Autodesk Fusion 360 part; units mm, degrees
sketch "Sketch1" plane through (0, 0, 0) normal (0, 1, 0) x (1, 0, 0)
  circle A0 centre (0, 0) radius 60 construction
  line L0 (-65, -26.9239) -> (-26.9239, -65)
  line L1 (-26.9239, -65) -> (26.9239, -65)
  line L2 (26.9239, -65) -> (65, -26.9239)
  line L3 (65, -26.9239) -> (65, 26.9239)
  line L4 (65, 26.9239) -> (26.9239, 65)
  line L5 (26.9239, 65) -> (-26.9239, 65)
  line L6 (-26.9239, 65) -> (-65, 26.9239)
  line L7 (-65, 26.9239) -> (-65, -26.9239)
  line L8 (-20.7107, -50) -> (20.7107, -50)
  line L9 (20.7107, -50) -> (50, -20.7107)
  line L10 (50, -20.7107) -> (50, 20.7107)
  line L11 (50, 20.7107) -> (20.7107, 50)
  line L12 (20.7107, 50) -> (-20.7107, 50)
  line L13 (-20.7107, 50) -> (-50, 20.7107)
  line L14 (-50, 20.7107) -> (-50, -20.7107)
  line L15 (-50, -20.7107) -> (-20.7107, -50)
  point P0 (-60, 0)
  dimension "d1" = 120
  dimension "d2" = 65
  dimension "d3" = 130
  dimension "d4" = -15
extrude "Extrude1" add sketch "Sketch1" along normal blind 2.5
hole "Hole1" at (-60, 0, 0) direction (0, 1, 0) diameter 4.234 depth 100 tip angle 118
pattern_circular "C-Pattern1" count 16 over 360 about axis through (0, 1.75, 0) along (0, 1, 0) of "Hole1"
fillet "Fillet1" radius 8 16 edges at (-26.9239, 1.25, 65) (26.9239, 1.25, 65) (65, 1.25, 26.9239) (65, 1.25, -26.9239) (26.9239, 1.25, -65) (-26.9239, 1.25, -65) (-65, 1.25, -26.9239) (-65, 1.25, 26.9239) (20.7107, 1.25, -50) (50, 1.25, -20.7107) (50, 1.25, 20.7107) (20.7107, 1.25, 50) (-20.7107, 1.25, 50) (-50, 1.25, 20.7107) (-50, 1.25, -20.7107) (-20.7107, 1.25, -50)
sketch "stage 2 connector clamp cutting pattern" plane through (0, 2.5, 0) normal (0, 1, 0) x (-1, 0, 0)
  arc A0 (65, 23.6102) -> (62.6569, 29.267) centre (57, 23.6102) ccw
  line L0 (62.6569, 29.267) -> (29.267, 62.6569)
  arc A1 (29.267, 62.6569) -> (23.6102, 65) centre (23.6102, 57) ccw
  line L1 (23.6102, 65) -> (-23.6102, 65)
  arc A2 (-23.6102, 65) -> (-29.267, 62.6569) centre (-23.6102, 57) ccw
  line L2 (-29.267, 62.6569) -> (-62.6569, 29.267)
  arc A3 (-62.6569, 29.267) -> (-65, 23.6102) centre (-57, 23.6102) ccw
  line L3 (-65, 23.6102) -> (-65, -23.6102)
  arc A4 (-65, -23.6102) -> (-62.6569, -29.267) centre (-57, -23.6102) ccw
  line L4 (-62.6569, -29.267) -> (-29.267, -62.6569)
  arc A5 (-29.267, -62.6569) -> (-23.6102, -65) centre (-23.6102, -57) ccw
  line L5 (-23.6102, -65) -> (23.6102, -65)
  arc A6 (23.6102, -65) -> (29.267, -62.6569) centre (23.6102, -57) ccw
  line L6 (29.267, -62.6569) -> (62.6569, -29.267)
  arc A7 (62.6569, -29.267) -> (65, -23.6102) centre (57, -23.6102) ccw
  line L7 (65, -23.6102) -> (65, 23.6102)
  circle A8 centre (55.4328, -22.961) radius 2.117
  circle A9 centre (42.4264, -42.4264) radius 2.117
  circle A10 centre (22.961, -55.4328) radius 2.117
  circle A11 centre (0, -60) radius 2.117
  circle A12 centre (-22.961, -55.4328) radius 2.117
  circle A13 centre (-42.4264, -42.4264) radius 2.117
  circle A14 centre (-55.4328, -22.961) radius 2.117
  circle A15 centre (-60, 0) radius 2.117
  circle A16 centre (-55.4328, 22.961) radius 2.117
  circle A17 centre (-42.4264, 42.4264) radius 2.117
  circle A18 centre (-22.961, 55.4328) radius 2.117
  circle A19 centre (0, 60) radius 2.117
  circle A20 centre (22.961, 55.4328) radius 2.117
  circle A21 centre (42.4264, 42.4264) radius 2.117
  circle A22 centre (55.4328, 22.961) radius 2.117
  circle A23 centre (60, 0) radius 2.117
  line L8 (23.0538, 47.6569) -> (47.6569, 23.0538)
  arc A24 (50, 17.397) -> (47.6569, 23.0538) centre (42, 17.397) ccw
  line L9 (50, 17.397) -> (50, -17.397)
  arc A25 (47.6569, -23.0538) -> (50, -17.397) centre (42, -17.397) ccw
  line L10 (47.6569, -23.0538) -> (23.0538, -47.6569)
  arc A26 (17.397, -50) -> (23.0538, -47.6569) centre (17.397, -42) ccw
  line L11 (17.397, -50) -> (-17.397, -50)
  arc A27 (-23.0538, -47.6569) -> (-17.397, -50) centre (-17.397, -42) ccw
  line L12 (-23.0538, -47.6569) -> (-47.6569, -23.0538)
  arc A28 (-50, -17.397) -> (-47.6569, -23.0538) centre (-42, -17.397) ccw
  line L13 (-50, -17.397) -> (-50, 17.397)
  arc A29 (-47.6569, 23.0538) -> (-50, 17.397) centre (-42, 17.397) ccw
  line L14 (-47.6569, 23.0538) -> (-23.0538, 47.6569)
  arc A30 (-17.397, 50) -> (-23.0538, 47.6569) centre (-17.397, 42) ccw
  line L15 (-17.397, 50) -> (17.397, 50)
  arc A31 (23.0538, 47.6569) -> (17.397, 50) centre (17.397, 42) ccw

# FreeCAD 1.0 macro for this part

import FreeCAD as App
import Part
import Sketcher

V = App.Vector
Q = App.Units.Quantity


def edges_at(feature, points):
    """Names of the edges that pass closest to the given points."""
    edges = feature.Shape.Edges
    near = lambda p: min(range(len(edges)), key=lambda i: edges[i].distToShape(Part.Vertex(*p))[0])
    return sorted({f"Edge{near(p) + 1}" for p in points})

doc = App.newDocument("Part")
body = doc.addObject("PartDesign::Body", "Body")

sketch1 = doc.addObject("Sketcher::SketchObject", "Sketch")
body.addObject(sketch1)
sketch1.AttachmentSupport = (doc.XZ_Plane, [""])
sketch1.MapMode = "FlatFace"
sketch1.addGeometry([
    Part.LineSegment(V(-65, -27, 0), V(-65, 27, 0)),
    Part.LineSegment(V(-65, 27, 0), V(-27, 65, 0)),
    Part.LineSegment(V(-27, 65, 0), V(27, 65, 0)),
    Part.LineSegment(V(27, 65, 0), V(65, 27, 0)),
    Part.LineSegment(V(65, 27, 0), V(65, -27, 0)),
    Part.LineSegment(V(65, -27, 0), V(27, -65, 0)),
    Part.LineSegment(V(27, -65, 0), V(-27, -65, 0)),
    Part.LineSegment(V(-27, -65, 0), V(-65, -27, 0)),
    Part.LineSegment(V(21, 50, 0), V(-21, 50, 0)),
    Part.LineSegment(V(-21, 50, 0), V(-50, 21, 0)),
    Part.LineSegment(V(-50, 21, 0), V(-50, -21, 0)),
    Part.LineSegment(V(-50, -21, 0), V(-21, -50, 0)),
    Part.LineSegment(V(-21, -50, 0), V(21, -50, 0)),
    Part.LineSegment(V(21, -50, 0), V(50, -21, 0)),
    Part.LineSegment(V(50, -21, 0), V(50, 21, 0)),
    Part.LineSegment(V(50, 21, 0), V(21, 50, 0)),
], False)
sketch1.addConstraint([
    Sketcher.Constraint("Coincident", 0, 2, 1, 1),
    Sketcher.Constraint("Coincident", 1, 2, 2, 1),
    Sketcher.Constraint("Coincident", 2, 2, 3, 1),
    Sketcher.Constraint("Coincident", 3, 2, 4, 1),
    Sketcher.Constraint("Coincident", 4, 2, 5, 1),
    Sketcher.Constraint("Coincident", 5, 2, 6, 1),
    Sketcher.Constraint("Coincident", 6, 2, 7, 1),
    Sketcher.Constraint("Coincident", 7, 2, 0, 1),
    Sketcher.Constraint("Coincident", 8, 2, 9, 1),
    Sketcher.Constraint("Coincident", 9, 2, 10, 1),
    Sketcher.Constraint("Coincident", 10, 2, 11, 1),
    Sketcher.Constraint("Coincident", 11, 2, 12, 1),
    Sketcher.Constraint("Coincident", 12, 2, 13, 1),
    Sketcher.Constraint("Coincident", 13, 2, 14, 1),
    Sketcher.Constraint("Coincident", 14, 2, 15, 1),
    Sketcher.Constraint("Coincident", 15, 2, 8, 1),
    Sketcher.Constraint("Vertical", 0),
    Sketcher.Constraint("Horizontal", 2),
    Sketcher.Constraint("Vertical", 4),
    Sketcher.Constraint("Horizontal", 6),
    Sketcher.Constraint("Horizontal", 8),
    Sketcher.Constraint("Vertical", 10),
    Sketcher.Constraint("Horizontal", 12),
    Sketcher.Constraint("Vertical", 14),
    Sketcher.Constraint("Symmetric", 0, 2, 4, 2, -1, 1),
    Sketcher.Constraint("Symmetric", 1, 2, 5, 2, -1, 1),
    Sketcher.Constraint("Symmetric", 8, 2, 12, 2, -1, 1),
    Sketcher.Constraint("Symmetric", 9, 2, 13, 2, -1, 1),
    Sketcher.Constraint("Perpendicular", 1, 3),
    Sketcher.Constraint("Perpendicular", 5, 7),
    Sketcher.Constraint("Perpendicular", 7, 9),
    Sketcher.Constraint("Perpendicular", 9, 11),
    Sketcher.Constraint("Perpendicular", 13, 15),
    Sketcher.Constraint("Horizontal", 0, 2, 3, 2),
    Sketcher.Constraint("Horizontal", 4, 2, 7, 2),
    Sketcher.Constraint("Horizontal", 10, 2, 13, 2),
    Sketcher.Constraint("Horizontal", 9, 2, 14, 2),
    Sketcher.Constraint("Vertical", 2, 2, 5, 2),
    Sketcher.Constraint("Equal", 6, 0),
    Sketcher.Constraint("Equal", 12, 10),
    Sketcher.Constraint("DistanceX", 2, 1, 2, 2, Q("2.12 in")),
    Sketcher.Constraint("DistanceX", 0, 2, 3, 2, Q("5.1181 in")),
    Sketcher.Constraint("DistanceY", 8, 2, 1, 2, Q("15 mm")),
    Sketcher.Constraint("DistanceX", 8, 2, 8, 1, Q("41.4214 mm")),
])
pad1 = doc.addObject("PartDesign::Pad", "Pad")
body.addObject(pad1)
pad1.Profile = sketch1
pad1.Length = 2.5
pad1.Reversed = True

sketch2 = doc.addObject("Sketcher::SketchObject", "Sketch001")
body.addObject(sketch2)
sketch2.AttachmentSupport = (doc.XZ_Plane, [""])
sketch2.MapMode = "FlatFace"
sketch2.addGeometry(Part.Circle(V(-60, 0, 0), V(0, 0, 1), 2.1), False)
sketch2.addConstraint([
    Sketcher.Constraint("PointOnObject", 0, 3, -1),
    Sketcher.Constraint("Diameter", 0, Q("0.1667 in")),
    Sketcher.Constraint("DistanceX", 0, 3, -1, 1, Q("2.3622 in")),
])
doc.recompute()
hole = doc.addObject("PartDesign::Hole", "Hole")
body.addObject(hole)
hole.Profile = sketch2
hole.ThreadType = "None"
hole.Diameter = Q("0.1666929 in")
hole.DepthType = "Dimension"
hole.Depth = Q("3.9370079 in")
hole.DrillPoint = "Angled"
hole.DrillPointAngle = 118
doc.recompute()

polarpattern = doc.addObject("PartDesign::PolarPattern", "PolarPattern")
body.addObject(polarpattern)
polarpattern.Originals = [hole]
polarpattern.Axis = (doc.Y_Axis, [""])
polarpattern.Angle = 360
polarpattern.Occurrences = 16
body.Tip = polarpattern
doc.recompute()

fillet = doc.addObject("PartDesign::Fillet", "Fillet")
body.addObject(fillet)
fillet.Base = (polarpattern, edges_at(polarpattern, [
    (-26.924, 1.25, 65),
    (26.924, 1.25, 65),
    (65, 1.25, 26.924),
    (65, 1.25, -26.924),
    (26.924, 1.25, -65),
    (-26.924, 1.25, -65),
    (-65, 1.25, -26.924),
    (-65, 1.25, 26.924),
    (20.711, 1.25, -50),
    (50, 1.25, -20.711),
    (50, 1.25, 20.711),
    (20.711, 1.25, 50),
    (-20.711, 1.25, 50),
    (-50, 1.25, 20.711),
    (-50, 1.25, -20.711),
    (-20.711, 1.25, -50),
]))
fillet.Radius = 8

doc.recompute()
